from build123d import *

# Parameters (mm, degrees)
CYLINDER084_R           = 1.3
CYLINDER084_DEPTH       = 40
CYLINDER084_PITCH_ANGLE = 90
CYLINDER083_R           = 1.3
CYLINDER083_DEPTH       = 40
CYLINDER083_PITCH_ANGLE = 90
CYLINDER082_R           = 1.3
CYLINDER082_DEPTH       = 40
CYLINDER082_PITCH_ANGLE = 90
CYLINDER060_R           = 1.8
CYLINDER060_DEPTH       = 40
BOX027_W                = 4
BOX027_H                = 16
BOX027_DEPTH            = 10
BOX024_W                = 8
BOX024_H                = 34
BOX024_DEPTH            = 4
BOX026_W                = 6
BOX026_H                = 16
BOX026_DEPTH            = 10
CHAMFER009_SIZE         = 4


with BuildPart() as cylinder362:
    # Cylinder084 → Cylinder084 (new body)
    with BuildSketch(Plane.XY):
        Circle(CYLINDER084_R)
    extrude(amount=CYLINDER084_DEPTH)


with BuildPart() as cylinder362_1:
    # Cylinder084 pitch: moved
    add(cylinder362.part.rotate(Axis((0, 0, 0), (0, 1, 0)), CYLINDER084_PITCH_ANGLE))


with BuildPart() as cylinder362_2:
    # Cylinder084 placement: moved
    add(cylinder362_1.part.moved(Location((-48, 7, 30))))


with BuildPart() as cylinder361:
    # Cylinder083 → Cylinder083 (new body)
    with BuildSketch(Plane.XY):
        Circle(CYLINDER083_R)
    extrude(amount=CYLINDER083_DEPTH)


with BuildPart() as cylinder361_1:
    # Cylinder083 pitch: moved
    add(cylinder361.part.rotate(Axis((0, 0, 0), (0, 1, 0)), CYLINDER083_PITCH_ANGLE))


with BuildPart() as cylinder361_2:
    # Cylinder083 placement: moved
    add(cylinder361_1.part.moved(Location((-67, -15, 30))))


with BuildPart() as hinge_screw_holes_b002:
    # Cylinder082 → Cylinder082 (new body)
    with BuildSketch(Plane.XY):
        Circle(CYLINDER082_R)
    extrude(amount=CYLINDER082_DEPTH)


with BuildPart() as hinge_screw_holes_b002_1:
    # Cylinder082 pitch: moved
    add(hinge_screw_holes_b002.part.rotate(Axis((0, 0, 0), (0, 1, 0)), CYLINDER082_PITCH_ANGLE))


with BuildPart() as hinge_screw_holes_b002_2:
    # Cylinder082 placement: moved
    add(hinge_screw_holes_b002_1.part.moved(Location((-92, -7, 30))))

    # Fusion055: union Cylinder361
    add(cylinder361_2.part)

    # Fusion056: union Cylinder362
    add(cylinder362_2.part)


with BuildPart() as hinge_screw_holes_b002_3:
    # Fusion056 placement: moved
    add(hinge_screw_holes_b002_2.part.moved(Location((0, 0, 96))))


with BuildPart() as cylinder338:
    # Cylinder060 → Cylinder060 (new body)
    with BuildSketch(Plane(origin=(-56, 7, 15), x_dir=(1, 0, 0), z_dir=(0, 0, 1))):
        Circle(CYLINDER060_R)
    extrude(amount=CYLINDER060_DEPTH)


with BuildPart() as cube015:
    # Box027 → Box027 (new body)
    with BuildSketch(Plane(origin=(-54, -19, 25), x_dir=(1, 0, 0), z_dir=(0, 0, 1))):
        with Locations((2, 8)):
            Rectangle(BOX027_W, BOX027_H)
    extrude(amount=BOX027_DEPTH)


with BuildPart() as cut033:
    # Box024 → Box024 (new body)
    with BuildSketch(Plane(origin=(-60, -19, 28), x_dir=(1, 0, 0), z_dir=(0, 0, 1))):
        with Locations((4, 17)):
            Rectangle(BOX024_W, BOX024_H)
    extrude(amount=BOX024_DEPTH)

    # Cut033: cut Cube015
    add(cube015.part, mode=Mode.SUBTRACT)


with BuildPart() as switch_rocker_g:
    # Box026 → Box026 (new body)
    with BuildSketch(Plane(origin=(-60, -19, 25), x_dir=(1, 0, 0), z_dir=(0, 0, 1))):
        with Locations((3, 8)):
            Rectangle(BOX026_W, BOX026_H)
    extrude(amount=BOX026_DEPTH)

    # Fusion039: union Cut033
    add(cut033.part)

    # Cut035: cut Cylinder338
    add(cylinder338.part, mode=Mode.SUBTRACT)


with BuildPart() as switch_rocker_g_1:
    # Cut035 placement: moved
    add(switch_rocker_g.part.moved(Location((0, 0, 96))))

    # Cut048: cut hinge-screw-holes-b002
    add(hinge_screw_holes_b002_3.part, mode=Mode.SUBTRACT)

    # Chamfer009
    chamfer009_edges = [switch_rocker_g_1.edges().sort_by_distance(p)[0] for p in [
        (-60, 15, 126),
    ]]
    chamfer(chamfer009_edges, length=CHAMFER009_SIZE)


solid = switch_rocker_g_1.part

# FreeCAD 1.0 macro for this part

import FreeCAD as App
import Part
import Sketcher

V = App.Vector


def edges_at(feature, points):
    """Names of the edges that pass closest to the given points."""
    edges = feature.Shape.Edges
    near = lambda p: min(range(len(edges)), key=lambda i: edges[i].distToShape(Part.Vertex(*p))[0])
    return sorted({f"Edge{near(p) + 1}" for p in points})

doc = App.newDocument("Part")
params = doc.addObject("Spreadsheet::Sheet", "Params")
for row, (alias, value) in enumerate([
    ("sketch1_diameter", "2.6 mm"),
    ("pad1_length", "40 mm"),
    ("sketch2_diameter", "2.6 mm"),
    ("pad2_length", "40 mm"),
    ("sketch3_diameter", "2.6 mm"),
    ("pad3_length", "40 mm"),
    ("sketch4_diameter", "3.6 mm"),
    ("pad4_length", "40 mm"),
    ("sketch5_width", "4 mm"),
    ("sketch5_height", "16 mm"),
    ("pad5_length", "10 mm"),
    ("sketch6_width", "8 mm"),
    ("sketch6_height", "34 mm"),
    ("pad6_length", "4 mm"),
    ("sketch7_width", "6 mm"),
    ("sketch7_height", "16 mm"),
    ("pad7_length", "10 mm"),
    ("chamfer_size", "4 mm"),
], start=1):
    params.set(f"A{row}", alias)
    params.set(f"B{row}", "=" + value)
    params.setAlias(f"B{row}", alias)

body = doc.addObject("PartDesign::Body", "Body")

# Sketch on XY plane
sketch1 = doc.addObject("Sketcher::SketchObject", "Sketch")
body.addObject(sketch1)
sketch1.AttachmentSupport = (doc.XY_Plane, [""])
sketch1.MapMode = "FlatFace"
sketch1.addGeometry(Part.Circle(V(0, 0, 0), V(0, 0, 1), 1.3), False)
sketch1.addConstraint([
    Sketcher.Constraint("Coincident", 0, 3, -1, 1),
    Sketcher.Constraint("Diameter", 0, 2.6),
])
sketch1.setExpression("Constraints[1]", "Params.sketch1_diameter")
pad1 = doc.addObject("PartDesign::Pad", "Pad")
body.addObject(pad1)
pad1.Profile = sketch1
pad1.setExpression("Length", "Params.pad1_length")
body2 = doc.addObject("PartDesign::Body", "Body001")
doc.recompute()

body.Placement = App.Placement(V(0, 0, 0), App.Rotation(V(0, 1, 0), 90))
boolean = doc.addObject("PartDesign::Boolean", "Boolean")
body2.addObject(boolean)
boolean.Type = "Fuse"
boolean.addObjects([body])
body3 = doc.addObject("PartDesign::Body", "Body002")
doc.recompute()

body2.Placement = App.Placement(V(-48, 7, 30), App.Rotation(V(0, 0, 1), 0))
boolean2 = doc.addObject("PartDesign::Boolean", "Boolean001")
body3.addObject(boolean2)
boolean2.Type = "Fuse"
boolean2.addObjects([body2])
body4 = doc.addObject("PartDesign::Body", "Body003")

# Sketch on XY plane
sketch2 = doc.addObject("Sketcher::SketchObject", "Sketch001")
body4.addObject(sketch2)
sketch2.AttachmentSupport = (doc.getObject("XY_Plane003"), [""])
sketch2.MapMode = "FlatFace"
sketch2.addGeometry(Part.Circle(V(0, 0, 0), V(0, 0, 1), 1.3), False)
sketch2.addConstraint([
    Sketcher.Constraint("Coincident", 0, 3, -1, 1),
    Sketcher.Constraint("Diameter", 0, 2.6),
])
sketch2.setExpression("Constraints[1]", "Params.sketch2_diameter")
pad2 = doc.addObject("PartDesign::Pad", "Pad001")
body4.addObject(pad2)
pad2.Profile = sketch2
pad2.setExpression("Length", "Params.pad2_length")
body5 = doc.addObject("PartDesign::Body", "Body004")
doc.recompute()

body4.Placement = App.Placement(V(0, 0, 0), App.Rotation(V(0, 1, 0), 90))
boolean3 = doc.addObject("PartDesign::Boolean", "Boolean002")
body5.addObject(boolean3)
boolean3.Type = "Fuse"
boolean3.addObjects([body4])
body6 = doc.addObject("PartDesign::Body", "Body005")
doc.recompute()

body5.Placement = App.Placement(V(-67, -15, 30), App.Rotation(V(0, 0, 1), 0))
boolean4 = doc.addObject("PartDesign::Boolean", "Boolean003")
body6.addObject(boolean4)
boolean4.Type = "Fuse"
boolean4.addObjects([body5])
body7 = doc.addObject("PartDesign::Body", "Body006")

# Sketch on XY plane
sketch3 = doc.addObject("Sketcher::SketchObject", "Sketch002")
body7.addObject(sketch3)
sketch3.AttachmentSupport = (doc.getObject("XY_Plane006"), [""])
sketch3.MapMode = "FlatFace"
sketch3.addGeometry(Part.Circle(V(0, 0, 0), V(0, 0, 1), 1.3), False)
sketch3.addConstraint([
    Sketcher.Constraint("Coincident", 0, 3, -1, 1),
    Sketcher.Constraint("Diameter", 0, 2.6),
])
sketch3.setExpression("Constraints[1]", "Params.sketch3_diameter")
pad3 = doc.addObject("PartDesign::Pad", "Pad002")
body7.addObject(pad3)
pad3.Profile = sketch3
pad3.setExpression("Length", "Params.pad3_length")
body8 = doc.addObject("PartDesign::Body", "Body007")
doc.recompute()

body7.Placement = App.Placement(V(0, 0, 0), App.Rotation(V(0, 1, 0), 90))
boolean5 = doc.addObject("PartDesign::Boolean", "Boolean004")
body8.addObject(boolean5)
boolean5.Type = "Fuse"
boolean5.addObjects([body7])
body9 = doc.addObject("PartDesign::Body", "Body008")
body9.AllowCompound = True
doc.recompute()

body8.Placement = App.Placement(V(-92, -7, 30), App.Rotation(V(0, 0, 1), 0))
boolean6 = doc.addObject("PartDesign::Boolean", "Boolean005")
body9.addObject(boolean6)
boolean6.Type = "Fuse"
boolean6.addObjects([body8])
doc.recompute()

boolean7 = doc.addObject("PartDesign::Boolean", "Boolean006")
body9.addObject(boolean7)
boolean7.Type = "Fuse"
boolean7.addObjects([body6])
doc.recompute()

boolean8 = doc.addObject("PartDesign::Boolean", "Boolean007")
body9.addObject(boolean8)
boolean8.Type = "Fuse"
boolean8.addObjects([body3])
body10 = doc.addObject("PartDesign::Body", "Body009")
body10.AllowCompound = True
doc.recompute()

body9.Placement = App.Placement(V(0, 0, 96), App.Rotation(V(0, 0, 1), 0))
boolean9 = doc.addObject("PartDesign::Boolean", "Boolean008")
body10.addObject(boolean9)
boolean9.Type = "Fuse"
boolean9.addObjects([body9])
body11 = doc.addObject("PartDesign::Body", "Body010")

# Sketch on XY plane
sketch4 = doc.addObject("Sketcher::SketchObject", "Sketch003")
body11.addObject(sketch4)
sketch4.AttachmentSupport = (doc.getObject("XY_Plane010"), [""])
sketch4.MapMode = "FlatFace"
sketch4.AttachmentOffset = App.Placement(V(0, 0, 15), App.Rotation())
sketch4.addGeometry(Part.Circle(V(-56, 7, 0), V(0, 0, 1), 1.8), False)
sketch4.addConstraint([
    Sketcher.Constraint("Diameter", 0, 3.6),
    Sketcher.Constraint("DistanceX", 0, 3, -1, 1, 56.0),
    Sketcher.Constraint("DistanceY", -1, 1, 0, 3, 7.0),
])
sketch4.setExpression("Constraints[0]", "Params.sketch4_diameter")
pad4 = doc.addObject("PartDesign::Pad", "Pad003")
body11.addObject(pad4)
pad4.Profile = sketch4
pad4.setExpression("Length", "Params.pad4_length")
body12 = doc.addObject("PartDesign::Body", "Body011")

# Sketch on XY plane
sketch5 = doc.addObject("Sketcher::SketchObject", "Sketch004")
body12.addObject(sketch5)
sketch5.AttachmentSupport = (doc.getObject("XY_Plane011"), [""])
sketch5.MapMode = "FlatFace"
sketch5.AttachmentOffset = App.Placement(V(0, 0, 25), App.Rotation())
sketch5.addGeometry([
    Part.LineSegment(V(-54, -3, 0), V(-54, -19, 0)),
    Part.LineSegment(V(-54, -19, 0), V(-50, -19, 0)),
    Part.LineSegment(V(-50, -19, 0), V(-50, -3, 0)),
    Part.LineSegment(V(-50, -3, 0), V(-54, -3, 0)),
], False)
sketch5.addConstraint([
    Sketcher.Constraint("Coincident", 0, 2, 1, 1),
    Sketcher.Constraint("Coincident", 1, 2, 2, 1),
    Sketcher.Constraint("Coincident", 2, 2, 3, 1),
    Sketcher.Constraint("Coincident", 3, 2, 0, 1),
    Sketcher.Constraint("Vertical", 0),
    Sketcher.Constraint("Horizontal", 1),
    Sketcher.Constraint("Vertical", 2),
    Sketcher.Constraint("Horizontal", 3),
    Sketcher.Constraint("DistanceX", 1, 1, 1, 2, 4.0),
    Sketcher.Constraint("DistanceY", 0, 2, 0, 1, 16.0),
    Sketcher.Constraint("DistanceX", 0, 2, -1, 1, 54.0),
    Sketcher.Constraint("DistanceY", 0, 2, -1, 1, 19.0),
])
sketch5.setExpression("Constraints[8]", "Params.sketch5_width")
sketch5.setExpression("Constraints[9]", "Params.sketch5_height")
pad5 = doc.addObject("PartDesign::Pad", "Pad004")
body12.addObject(pad5)
pad5.Profile = sketch5
pad5.setExpression("Length", "Params.pad5_length")
body13 = doc.addObject("PartDesign::Body", "Body012")

# Sketch on XY plane
sketch6 = doc.addObject("Sketcher::SketchObject", "Sketch005")
body13.addObject(sketch6)
sketch6.AttachmentSupport = (doc.getObject("XY_Plane012"), [""])
sketch6.MapMode = "FlatFace"
sketch6.AttachmentOffset = App.Placement(V(0, 0, 28), App.Rotation())
sketch6.addGeometry([
    Part.LineSegment(V(-60, 15, 0), V(-60, -19, 0)),
    Part.LineSegment(V(-60, -19, 0), V(-52, -19, 0)),
    Part.LineSegment(V(-52, -19, 0), V(-52, 15, 0)),
    Part.LineSegment(V(-52, 15, 0), V(-60, 15, 0)),
], False)
sketch6.addConstraint([
    Sketcher.Constraint("Coincident", 0, 2, 1, 1),
    Sketcher.Constraint("Coincident", 1, 2, 2, 1),
    Sketcher.Constraint("Coincident", 2, 2, 3, 1),
    Sketcher.Constraint("Coincident", 3, 2, 0, 1),
    Sketcher.Constraint("Vertical", 0),
    Sketcher.Constraint("Horizontal", 1),
    Sketcher.Constraint("Vertical", 2),
    Sketcher.Constraint("Horizontal", 3),
    Sketcher.Constraint("DistanceX", 1, 1, 1, 2, 8.0),
    Sketcher.Constraint("DistanceY", 0, 2, 0, 1, 34.0),
    Sketcher.Constraint("DistanceX", 0, 2, -1, 1, 60.0),
    Sketcher.Constraint("DistanceY", 0, 2, -1, 1, 19.0),
])
sketch6.setExpression("Constraints[8]", "Params.sketch6_width")
sketch6.setExpression("Constraints[9]", "Params.sketch6_height")
pad6 = doc.addObject("PartDesign::Pad", "Pad005")
body13.addObject(pad6)
pad6.Profile = sketch6
pad6.setExpression("Length", "Params.pad6_length")
doc.recompute()

boolean10 = doc.addObject("PartDesign::Boolean", "Boolean009")
body13.addObject(boolean10)
boolean10.Type = "Cut"
boolean10.addObjects([body12])
body14 = doc.addObject("PartDesign::Body", "Body013")

# Sketch on XY plane
sketch7 = doc.addObject("Sketcher::SketchObject", "Sketch006")
body14.addObject(sketch7)
sketch7.AttachmentSupport = (doc.getObject("XY_Plane013"), [""])
sketch7.MapMode = "FlatFace"
sketch7.AttachmentOffset = App.Placement(V(0, 0, 25), App.Rotation())
sketch7.addGeometry([
    Part.LineSegment(V(-60, -3, 0), V(-60, -19, 0)),
    Part.LineSegment(V(-60, -19, 0), V(-54, -19, 0)),
    Part.LineSegment(V(-54, -19, 0), V(-54, -3, 0)),
    Part.LineSegment(V(-54, -3, 0), V(-60, -3, 0)),
], False)
sketch7.addConstraint([
    Sketcher.Constraint("Coincident", 0, 2, 1, 1),
    Sketcher.Constraint("Coincident", 1, 2, 2, 1),
    Sketcher.Constraint("Coincident", 2, 2, 3, 1),
    Sketcher.Constraint("Coincident", 3, 2, 0, 1),
    Sketcher.Constraint("Vertical", 0),
    Sketcher.Constraint("Horizontal", 1),
    Sketcher.Constraint("Vertical", 2),
    Sketcher.Constraint("Horizontal", 3),
    Sketcher.Constraint("DistanceX", 1, 1, 1, 2, 6.0),
    Sketcher.Constraint("DistanceY", 0, 2, 0, 1, 16.0),
    Sketcher.Constraint("DistanceX", 0, 2, -1, 1, 60.0),
    Sketcher.Constraint("DistanceY", 0, 2, -1, 1, 19.0),
])
sketch7.setExpression("Constraints[8]", "Params.sketch7_width")
sketch7.setExpression("Constraints[9]", "Params.sketch7_height")
pad7 = doc.addObject("PartDesign::Pad", "Pad006")
body14.addObject(pad7)
pad7.Profile = sketch7
pad7.setExpression("Length", "Params.pad7_length")
doc.recompute()

boolean11 = doc.addObject("PartDesign::Boolean", "Boolean010")
body14.addObject(boolean11)
boolean11.Type = "Fuse"
boolean11.addObjects([body13])
doc.recompute()

boolean12 = doc.addObject("PartDesign::Boolean", "Boolean011")
body14.addObject(boolean12)
boolean12.Type = "Cut"
boolean12.addObjects([body11])
body15 = doc.addObject("PartDesign::Body", "Body014")
doc.recompute()

body14.Placement = App.Placement(V(0, 0, 96), App.Rotation(V(0, 0, 1), 0))
boolean13 = doc.addObject("PartDesign::Boolean", "Boolean012")
body15.addObject(boolean13)
boolean13.Type = "Fuse"
boolean13.addObjects([body14])
doc.recompute()

boolean14 = doc.addObject("PartDesign::Boolean", "Boolean013")
body15.addObject(boolean14)
boolean14.Type = "Cut"
boolean14.addObjects([body10])
doc.recompute()

chamfer = doc.addObject("PartDesign::Chamfer", "Chamfer")
body15.addObject(chamfer)
chamfer.Base = (boolean14, edges_at(boolean14, [(-60, 15, 126)]))
chamfer.setExpression("Size", "Params.chamfer_size")

doc.recompute()
